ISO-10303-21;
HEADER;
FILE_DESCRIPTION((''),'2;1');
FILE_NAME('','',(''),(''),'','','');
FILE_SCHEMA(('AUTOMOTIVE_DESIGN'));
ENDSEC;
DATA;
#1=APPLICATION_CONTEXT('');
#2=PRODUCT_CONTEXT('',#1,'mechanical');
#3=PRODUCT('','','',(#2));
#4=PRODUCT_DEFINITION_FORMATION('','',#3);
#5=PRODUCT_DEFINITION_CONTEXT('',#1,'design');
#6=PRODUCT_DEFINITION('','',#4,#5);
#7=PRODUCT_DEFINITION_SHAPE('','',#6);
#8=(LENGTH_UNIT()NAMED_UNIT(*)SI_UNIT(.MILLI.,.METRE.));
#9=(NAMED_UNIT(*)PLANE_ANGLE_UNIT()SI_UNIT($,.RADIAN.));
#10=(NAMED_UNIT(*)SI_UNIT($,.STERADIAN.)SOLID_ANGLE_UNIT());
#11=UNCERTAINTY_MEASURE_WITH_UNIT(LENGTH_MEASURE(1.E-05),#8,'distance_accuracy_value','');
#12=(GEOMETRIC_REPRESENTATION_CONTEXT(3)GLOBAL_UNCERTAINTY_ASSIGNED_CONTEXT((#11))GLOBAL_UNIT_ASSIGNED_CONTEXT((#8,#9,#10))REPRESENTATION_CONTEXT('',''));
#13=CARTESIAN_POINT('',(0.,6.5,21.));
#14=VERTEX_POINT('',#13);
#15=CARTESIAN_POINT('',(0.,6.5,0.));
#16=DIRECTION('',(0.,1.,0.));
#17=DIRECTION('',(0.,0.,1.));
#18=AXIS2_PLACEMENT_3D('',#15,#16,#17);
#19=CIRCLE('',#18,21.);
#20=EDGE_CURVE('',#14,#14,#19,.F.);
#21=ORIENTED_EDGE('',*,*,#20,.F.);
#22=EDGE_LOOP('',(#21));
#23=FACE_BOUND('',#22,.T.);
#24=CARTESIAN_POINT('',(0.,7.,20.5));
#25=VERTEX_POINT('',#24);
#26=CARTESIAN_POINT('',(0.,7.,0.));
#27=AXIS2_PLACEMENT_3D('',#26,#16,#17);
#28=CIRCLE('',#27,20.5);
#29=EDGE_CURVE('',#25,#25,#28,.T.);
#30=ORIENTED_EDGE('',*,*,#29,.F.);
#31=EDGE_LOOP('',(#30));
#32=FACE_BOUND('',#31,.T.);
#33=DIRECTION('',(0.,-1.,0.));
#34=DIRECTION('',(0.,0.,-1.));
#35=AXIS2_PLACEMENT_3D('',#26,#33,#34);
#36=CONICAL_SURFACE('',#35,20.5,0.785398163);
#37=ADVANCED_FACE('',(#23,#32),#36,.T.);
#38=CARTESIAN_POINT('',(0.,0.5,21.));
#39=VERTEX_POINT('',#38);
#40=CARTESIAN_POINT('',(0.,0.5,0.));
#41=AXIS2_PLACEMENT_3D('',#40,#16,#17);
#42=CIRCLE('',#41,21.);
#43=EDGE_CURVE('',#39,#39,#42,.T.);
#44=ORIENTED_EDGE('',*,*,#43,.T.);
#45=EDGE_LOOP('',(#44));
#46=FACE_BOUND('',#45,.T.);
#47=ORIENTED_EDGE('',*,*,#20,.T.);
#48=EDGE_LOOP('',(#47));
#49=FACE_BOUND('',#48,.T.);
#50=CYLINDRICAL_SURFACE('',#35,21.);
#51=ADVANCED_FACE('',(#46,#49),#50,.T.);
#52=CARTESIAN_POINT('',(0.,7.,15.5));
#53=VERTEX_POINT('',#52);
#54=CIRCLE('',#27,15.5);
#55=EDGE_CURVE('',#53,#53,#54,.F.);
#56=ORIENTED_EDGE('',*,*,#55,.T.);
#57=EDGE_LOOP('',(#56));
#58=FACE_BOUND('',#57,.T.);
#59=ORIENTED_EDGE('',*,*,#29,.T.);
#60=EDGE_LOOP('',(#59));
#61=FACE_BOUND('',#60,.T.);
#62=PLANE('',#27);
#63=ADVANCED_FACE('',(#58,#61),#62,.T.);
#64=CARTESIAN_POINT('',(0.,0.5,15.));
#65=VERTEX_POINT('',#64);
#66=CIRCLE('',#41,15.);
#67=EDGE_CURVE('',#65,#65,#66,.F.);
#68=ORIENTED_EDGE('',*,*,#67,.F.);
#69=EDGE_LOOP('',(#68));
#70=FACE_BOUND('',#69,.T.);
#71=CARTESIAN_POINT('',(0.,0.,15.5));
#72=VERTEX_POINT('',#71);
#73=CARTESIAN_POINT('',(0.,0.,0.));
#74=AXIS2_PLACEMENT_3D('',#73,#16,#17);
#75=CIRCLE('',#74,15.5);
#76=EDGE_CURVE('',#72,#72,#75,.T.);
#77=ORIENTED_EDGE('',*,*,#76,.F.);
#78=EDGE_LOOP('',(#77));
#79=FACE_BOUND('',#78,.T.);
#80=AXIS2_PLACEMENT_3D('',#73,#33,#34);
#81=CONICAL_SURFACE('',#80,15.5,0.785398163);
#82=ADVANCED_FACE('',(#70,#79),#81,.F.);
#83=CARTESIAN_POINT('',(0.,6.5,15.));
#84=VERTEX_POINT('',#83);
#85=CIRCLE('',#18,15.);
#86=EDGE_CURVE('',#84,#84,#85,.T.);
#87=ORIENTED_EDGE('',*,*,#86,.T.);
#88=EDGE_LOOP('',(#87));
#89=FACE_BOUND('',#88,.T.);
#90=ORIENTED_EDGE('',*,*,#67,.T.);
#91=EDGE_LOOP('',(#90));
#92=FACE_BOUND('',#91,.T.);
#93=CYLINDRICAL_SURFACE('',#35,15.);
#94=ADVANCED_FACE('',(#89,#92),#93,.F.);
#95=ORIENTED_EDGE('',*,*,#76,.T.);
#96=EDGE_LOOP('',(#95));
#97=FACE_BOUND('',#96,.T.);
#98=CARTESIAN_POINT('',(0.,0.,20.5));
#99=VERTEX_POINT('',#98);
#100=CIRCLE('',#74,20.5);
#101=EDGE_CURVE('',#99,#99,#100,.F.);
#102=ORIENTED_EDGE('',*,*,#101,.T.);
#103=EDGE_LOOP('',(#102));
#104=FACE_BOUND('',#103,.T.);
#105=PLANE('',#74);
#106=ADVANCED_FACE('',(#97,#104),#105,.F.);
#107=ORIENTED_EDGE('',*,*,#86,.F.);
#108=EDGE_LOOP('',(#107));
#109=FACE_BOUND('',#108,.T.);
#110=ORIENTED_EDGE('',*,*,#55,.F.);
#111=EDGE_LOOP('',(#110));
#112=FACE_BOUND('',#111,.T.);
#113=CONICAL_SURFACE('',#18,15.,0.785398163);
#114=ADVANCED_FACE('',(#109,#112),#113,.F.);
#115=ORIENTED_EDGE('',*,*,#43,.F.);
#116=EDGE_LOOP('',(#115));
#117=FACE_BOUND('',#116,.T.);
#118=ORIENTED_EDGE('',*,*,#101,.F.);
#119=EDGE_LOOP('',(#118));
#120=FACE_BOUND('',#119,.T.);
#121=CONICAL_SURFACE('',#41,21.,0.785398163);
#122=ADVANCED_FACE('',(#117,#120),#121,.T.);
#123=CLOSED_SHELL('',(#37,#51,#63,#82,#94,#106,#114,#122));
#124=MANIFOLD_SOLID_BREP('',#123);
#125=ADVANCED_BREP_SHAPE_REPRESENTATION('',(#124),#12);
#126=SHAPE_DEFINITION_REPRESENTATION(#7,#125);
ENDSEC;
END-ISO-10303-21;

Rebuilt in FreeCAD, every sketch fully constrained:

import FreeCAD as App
import Part
import Sketcher


def edges_at(feature, points):
    """Names of the edges that pass closest to the given points."""
    edges = feature.Shape.Edges
    near = lambda p: min(range(len(edges)), key=lambda i: edges[i].distToShape(Part.Vertex(*p))[0])
    return sorted({f"Edge{near(p) + 1}" for p in points})

doc = App.newDocument("Part")
body = doc.addObject("PartDesign::Body", "Body")

sketch1 = doc.addObject("Sketcher::SketchObject", "Sketch")
body.addObject(sketch1)
sketch1.AttachmentSupport = (doc.XZ_Plane, [""])
sketch1.MapMode = "FlatFace"
sketch1.addGeometry(Part.Circle(App.Vector(0, 0, 0), App.Vector(0, 0, 1), 21), False)
sketch1.addGeometry(Part.Circle(App.Vector(0, 0, 0), App.Vector(0, 0, 1), 15), False)
sketch1.addConstraint(Sketcher.Constraint("Coincident", 0, 3, -1, 1))
sketch1.addConstraint(Sketcher.Constraint("Coincident", 1, 3, -1, 1))
sketch1.addConstraint(Sketcher.Constraint("Diameter", 0, 42.0))
sketch1.addConstraint(Sketcher.Constraint("Diameter", 1, 30.0))
pad1 = doc.addObject("PartDesign::Pad", "Pad")
body.addObject(pad1)
pad1.Profile = sketch1
pad1.Length = 7
pad1.Reversed = True
doc.recompute()

chamfer = doc.addObject("PartDesign::Chamfer", "Chamfer")
body.addObject(chamfer)
chamfer.Base = (pad1, edges_at(pad1, [
    (-21, 0, 0),
    (-21, 7, 0),
    (-15, 0, 0),
    (-15, 7, 0),
]))
chamfer.Size = 0.5

doc.recompute()
